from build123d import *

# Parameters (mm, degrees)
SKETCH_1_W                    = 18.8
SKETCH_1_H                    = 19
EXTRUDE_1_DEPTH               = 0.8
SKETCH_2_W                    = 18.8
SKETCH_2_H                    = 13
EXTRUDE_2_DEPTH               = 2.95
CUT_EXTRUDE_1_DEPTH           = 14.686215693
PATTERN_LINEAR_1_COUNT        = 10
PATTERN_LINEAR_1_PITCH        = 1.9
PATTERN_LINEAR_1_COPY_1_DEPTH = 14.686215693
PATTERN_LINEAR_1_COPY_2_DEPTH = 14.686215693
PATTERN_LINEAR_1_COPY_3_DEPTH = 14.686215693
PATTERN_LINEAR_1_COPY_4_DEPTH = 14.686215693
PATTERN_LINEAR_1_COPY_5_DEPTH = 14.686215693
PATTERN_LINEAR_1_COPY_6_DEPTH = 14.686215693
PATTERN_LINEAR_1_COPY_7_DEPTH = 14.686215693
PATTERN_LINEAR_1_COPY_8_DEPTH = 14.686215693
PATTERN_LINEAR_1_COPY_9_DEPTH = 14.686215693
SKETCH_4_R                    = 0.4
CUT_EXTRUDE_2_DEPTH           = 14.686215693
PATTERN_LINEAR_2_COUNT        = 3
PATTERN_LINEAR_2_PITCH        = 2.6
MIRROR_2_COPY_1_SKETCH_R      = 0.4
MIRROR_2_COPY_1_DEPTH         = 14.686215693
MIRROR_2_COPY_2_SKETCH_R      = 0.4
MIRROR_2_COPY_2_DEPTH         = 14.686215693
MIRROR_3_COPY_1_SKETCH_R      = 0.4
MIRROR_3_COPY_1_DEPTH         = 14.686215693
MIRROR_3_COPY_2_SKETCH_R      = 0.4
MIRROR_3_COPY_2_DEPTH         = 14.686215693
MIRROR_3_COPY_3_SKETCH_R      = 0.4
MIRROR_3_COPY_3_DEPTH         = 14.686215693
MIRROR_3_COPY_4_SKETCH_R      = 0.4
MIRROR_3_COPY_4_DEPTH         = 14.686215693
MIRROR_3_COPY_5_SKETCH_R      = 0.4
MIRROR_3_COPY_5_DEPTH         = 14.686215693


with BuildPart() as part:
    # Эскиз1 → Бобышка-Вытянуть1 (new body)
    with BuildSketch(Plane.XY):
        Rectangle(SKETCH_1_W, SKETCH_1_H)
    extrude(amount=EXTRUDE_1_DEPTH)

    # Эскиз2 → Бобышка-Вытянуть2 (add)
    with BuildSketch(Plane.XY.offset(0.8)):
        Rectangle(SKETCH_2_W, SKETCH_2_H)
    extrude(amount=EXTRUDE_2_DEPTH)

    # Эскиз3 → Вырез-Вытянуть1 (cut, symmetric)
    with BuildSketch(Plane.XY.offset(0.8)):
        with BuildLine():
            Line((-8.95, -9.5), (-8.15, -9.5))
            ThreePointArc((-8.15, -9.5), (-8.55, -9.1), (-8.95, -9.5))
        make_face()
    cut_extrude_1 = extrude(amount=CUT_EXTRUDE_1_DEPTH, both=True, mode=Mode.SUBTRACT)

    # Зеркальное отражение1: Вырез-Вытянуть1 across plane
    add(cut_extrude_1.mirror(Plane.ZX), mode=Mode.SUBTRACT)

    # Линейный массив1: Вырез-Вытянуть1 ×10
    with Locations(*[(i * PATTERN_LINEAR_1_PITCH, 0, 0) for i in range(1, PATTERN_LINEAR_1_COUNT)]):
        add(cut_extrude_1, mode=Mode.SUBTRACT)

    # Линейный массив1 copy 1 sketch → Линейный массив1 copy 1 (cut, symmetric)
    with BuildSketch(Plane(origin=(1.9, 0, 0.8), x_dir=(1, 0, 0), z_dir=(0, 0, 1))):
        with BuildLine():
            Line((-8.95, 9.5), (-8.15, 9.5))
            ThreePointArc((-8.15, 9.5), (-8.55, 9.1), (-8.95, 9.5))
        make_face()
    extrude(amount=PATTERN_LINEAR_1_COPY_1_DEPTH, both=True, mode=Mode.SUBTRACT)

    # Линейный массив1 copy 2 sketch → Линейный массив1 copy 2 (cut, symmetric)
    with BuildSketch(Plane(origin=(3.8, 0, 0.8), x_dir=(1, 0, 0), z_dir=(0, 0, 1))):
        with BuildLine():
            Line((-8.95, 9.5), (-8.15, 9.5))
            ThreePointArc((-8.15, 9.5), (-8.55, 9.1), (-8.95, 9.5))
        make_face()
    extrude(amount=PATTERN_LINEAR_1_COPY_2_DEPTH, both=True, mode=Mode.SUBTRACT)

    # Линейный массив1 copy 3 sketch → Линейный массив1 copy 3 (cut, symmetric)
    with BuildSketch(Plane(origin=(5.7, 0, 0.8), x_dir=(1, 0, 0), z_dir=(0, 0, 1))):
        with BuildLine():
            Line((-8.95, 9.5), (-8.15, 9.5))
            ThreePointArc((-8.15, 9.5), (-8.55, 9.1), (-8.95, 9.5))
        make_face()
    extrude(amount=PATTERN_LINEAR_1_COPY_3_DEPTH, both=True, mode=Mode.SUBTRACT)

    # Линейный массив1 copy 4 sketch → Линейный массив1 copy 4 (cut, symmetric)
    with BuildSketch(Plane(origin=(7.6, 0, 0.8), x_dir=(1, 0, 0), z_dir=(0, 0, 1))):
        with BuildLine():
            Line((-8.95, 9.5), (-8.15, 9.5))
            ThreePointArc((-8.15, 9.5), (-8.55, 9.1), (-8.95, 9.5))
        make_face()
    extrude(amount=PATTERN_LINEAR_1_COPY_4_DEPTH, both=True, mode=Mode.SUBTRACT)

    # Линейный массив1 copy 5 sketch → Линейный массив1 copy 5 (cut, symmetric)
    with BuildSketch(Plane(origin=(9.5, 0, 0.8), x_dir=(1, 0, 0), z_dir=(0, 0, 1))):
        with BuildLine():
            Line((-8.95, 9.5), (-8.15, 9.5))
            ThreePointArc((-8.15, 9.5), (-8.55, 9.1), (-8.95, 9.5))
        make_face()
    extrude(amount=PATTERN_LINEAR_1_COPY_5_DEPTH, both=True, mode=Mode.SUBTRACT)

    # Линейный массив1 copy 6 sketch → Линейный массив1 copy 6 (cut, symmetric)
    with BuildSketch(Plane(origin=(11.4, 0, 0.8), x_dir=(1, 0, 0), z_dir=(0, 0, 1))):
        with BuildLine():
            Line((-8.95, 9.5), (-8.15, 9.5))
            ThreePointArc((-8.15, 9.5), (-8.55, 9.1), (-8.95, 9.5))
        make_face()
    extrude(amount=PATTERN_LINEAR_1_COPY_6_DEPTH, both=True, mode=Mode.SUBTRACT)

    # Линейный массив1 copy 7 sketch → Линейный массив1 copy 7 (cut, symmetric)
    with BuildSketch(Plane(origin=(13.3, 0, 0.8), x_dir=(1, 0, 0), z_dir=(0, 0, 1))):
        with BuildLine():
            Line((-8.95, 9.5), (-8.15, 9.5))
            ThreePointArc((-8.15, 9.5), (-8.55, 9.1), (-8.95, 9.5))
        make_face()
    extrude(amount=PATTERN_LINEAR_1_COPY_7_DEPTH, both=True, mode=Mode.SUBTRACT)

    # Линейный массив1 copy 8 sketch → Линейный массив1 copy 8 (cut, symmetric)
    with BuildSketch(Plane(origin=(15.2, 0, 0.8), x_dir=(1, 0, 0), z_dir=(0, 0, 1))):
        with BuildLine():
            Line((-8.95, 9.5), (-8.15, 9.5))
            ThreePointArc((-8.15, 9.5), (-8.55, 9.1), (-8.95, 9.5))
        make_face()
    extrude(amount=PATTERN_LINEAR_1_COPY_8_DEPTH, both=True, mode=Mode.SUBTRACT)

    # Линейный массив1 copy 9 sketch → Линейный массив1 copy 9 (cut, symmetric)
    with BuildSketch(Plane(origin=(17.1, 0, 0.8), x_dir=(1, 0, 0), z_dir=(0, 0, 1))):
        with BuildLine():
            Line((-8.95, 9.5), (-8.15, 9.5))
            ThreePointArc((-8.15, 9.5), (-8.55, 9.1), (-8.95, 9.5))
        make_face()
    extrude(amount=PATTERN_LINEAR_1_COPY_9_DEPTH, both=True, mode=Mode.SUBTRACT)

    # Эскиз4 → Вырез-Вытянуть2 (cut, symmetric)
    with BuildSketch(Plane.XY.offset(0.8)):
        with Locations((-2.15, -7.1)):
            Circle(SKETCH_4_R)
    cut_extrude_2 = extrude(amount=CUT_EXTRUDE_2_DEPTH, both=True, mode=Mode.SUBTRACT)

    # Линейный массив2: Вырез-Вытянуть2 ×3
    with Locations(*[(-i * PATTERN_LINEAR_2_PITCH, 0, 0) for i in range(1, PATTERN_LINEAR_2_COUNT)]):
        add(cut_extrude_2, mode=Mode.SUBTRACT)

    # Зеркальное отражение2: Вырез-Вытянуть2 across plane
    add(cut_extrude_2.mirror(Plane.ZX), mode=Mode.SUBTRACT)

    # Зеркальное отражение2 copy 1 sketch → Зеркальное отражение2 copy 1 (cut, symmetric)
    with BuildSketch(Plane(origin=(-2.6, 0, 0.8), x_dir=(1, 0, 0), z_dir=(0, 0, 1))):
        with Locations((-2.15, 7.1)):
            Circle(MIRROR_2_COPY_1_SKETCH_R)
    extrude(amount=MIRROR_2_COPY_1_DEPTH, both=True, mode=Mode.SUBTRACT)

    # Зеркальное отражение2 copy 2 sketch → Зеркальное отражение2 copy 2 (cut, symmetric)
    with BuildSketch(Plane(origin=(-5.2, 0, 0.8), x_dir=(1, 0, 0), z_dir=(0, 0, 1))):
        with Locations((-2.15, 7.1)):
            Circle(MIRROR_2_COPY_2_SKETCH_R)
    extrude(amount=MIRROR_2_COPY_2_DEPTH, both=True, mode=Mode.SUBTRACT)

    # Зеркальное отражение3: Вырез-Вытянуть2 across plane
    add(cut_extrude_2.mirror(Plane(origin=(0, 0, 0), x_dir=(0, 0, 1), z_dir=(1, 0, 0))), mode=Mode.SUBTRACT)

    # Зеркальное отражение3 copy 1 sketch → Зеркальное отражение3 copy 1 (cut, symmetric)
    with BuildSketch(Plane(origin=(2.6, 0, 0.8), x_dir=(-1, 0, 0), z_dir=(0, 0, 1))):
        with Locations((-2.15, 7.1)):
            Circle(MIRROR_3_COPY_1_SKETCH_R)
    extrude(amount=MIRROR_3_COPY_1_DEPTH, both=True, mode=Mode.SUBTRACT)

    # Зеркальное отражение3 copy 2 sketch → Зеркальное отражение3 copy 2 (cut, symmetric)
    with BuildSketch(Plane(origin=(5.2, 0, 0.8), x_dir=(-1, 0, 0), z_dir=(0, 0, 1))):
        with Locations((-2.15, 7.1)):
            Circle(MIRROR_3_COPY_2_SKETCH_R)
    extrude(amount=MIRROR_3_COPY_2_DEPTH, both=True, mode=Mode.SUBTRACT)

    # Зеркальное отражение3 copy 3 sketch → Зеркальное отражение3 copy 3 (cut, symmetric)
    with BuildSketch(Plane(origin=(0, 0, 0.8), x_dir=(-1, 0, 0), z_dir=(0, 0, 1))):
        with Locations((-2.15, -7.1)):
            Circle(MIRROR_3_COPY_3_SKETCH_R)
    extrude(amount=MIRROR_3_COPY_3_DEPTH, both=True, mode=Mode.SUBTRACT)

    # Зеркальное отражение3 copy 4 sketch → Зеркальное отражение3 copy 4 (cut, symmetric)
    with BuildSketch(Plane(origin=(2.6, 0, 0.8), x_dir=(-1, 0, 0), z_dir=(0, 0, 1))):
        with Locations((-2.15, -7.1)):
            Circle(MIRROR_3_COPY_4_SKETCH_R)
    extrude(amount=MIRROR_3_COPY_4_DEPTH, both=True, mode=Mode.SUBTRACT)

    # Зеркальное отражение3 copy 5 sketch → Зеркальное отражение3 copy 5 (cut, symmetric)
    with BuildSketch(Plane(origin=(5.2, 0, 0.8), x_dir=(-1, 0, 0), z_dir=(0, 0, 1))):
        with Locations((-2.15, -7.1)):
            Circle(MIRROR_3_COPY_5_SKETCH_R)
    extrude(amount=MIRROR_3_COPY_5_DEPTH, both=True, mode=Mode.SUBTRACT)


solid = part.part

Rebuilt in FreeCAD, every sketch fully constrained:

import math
import FreeCAD as App
import Part
import Sketcher

V = App.Vector
Q = App.Units.Quantity


def add_polygon(sketch, points):
    """Adds a closed chain of lines whose ends are joined by coincident constraints."""
    first, n = sketch.GeometryCount, len(points)
    for a, b in zip(points, points[1:] + points[:1]):
        sketch.addGeometry(Part.LineSegment(App.Vector(*a, 0), App.Vector(*b, 0)), False)
    for i in range(n):
        sketch.addConstraint(Sketcher.Constraint("Coincident", first + i, 2, first + (i + 1) % n, 1))

doc = App.newDocument("Part")
body = doc.addObject("PartDesign::Body", "Body")

# Sketch on XY plane
sketch1 = body.newObject("Sketcher::SketchObject", "Sketch")
sketch1.AttachmentSupport = (doc.getObject("XY_Plane"), [""])
sketch1.MapMode = "FlatFace"
add_polygon(sketch1, [(-9, 10), (-9, -10), (9, -10), (9, 10)])  # lines 0-3
sketch1.addConstraint([
    Sketcher.Constraint("Vertical", 0),
    Sketcher.Constraint("Horizontal", 1),
    Sketcher.Constraint("Vertical", 2),
    Sketcher.Constraint("Horizontal", 3),
    Sketcher.Constraint("Symmetric", 0, 2, 2, 2, -1, 1),
    Sketcher.Constraint("DistanceY", 0, 2, 0, 1, Q("19 mm")),
    Sketcher.Constraint("DistanceX", 1, 1, 1, 2, Q("18.8 mm")),
])
pad1 = body.newObject("PartDesign::Pad", "Pad")
pad1.Profile = sketch1
pad1.Length = 0.8

# Sketch on XY plane
sketch2 = body.newObject("Sketcher::SketchObject", "Sketch001")
sketch2.AttachmentSupport = (doc.getObject("XY_Plane"), [""])
sketch2.MapMode = "FlatFace"
sketch2.AttachmentOffset = App.Placement(V(0, 0, 0.8), App.Rotation())
add_polygon(sketch2, [(-9, 6), (-9, -6), (9, -6), (9, 6)])  # lines 0-3
sketch2.addConstraint([
    Sketcher.Constraint("Vertical", 0),
    Sketcher.Constraint("Horizontal", 1),
    Sketcher.Constraint("Vertical", 2),
    Sketcher.Constraint("Horizontal", 3),
    Sketcher.Constraint("Symmetric", 0, 2, 2, 2, -1, 1),
    Sketcher.Constraint("DistanceY", 0, 2, 0, 1, Q("13 mm")),
    Sketcher.Constraint("DistanceX", 1, 1, 1, 2, Q("18.8 mm")),
])
pad2 = body.newObject("PartDesign::Pad", "Pad001")
pad2.Profile = sketch2
pad2.Length = 2.95

# Sketch on XY plane
sketch3 = body.newObject("Sketcher::SketchObject", "Sketch002")
sketch3.AttachmentSupport = (doc.getObject("XY_Plane"), [""])
sketch3.MapMode = "FlatFace"
sketch3.AttachmentOffset = App.Placement(V(0, 0, 0.8), App.Rotation())
sketch3.addGeometry([
    Part.LineSegment(V(-8.95, -9.5, 0), V(-8.15, -9.5, 0)),
    Part.ArcOfCircle(Part.Circle(V(-8.55, -9.5, 0), V(0, 0, 1), 0.4), math.radians(0), math.radians(180)),
], False)
sketch3.addConstraint([
    Sketcher.Constraint("Coincident", 0, 1, 1, 2),
    Sketcher.Constraint("Coincident", 1, 1, 0, 2),
    Sketcher.Constraint("Horizontal", 0),
    Sketcher.Constraint("Horizontal", 1, 3, 0, 1),
    Sketcher.Constraint("Radius", 1, Q("0.4 mm")),
    Sketcher.Constraint("DistanceY", 1, 3, -1, 1, Q("9.5 mm")),
    Sketcher.Constraint("DistanceX", 1, 3, -1, 1, Q("8.55 mm")),
])
pocket1 = body.newObject("PartDesign::Pocket", "Pocket")
pocket1.Profile = sketch3
pocket1.Length = 29.372431
pocket1.Midplane = True
doc.recompute()

mirrored = body.newObject("PartDesign::Mirrored", "Mirrored")
mirrored.Originals = [pocket1]
mirrored.MirrorPlane = (doc.getObject("XZ_Plane"), [""])
body.Tip = mirrored
doc.recompute()

linearpattern = body.newObject("PartDesign::LinearPattern", "LinearPattern")
linearpattern.Originals = [pocket1]
linearpattern.Direction = (doc.getObject("X_Axis"), [""])
linearpattern.Mode = "offset"
linearpattern.Offset = 1.9
linearpattern.Occurrences = 10
body.Tip = linearpattern

# Sketch on XY plane
sketch4 = body.newObject("Sketcher::SketchObject", "Sketch003")
sketch4.AttachmentSupport = (doc.getObject("XY_Plane"), [""])
sketch4.MapMode = "FlatFace"
sketch4.AttachmentOffset = App.Placement(V(0, 0, 0.8), App.Rotation())
sketch4.addGeometry([
    Part.LineSegment(V(-6.25, 9.5, 0), V(-7.05, 9.5, 0)),
    Part.ArcOfCircle(Part.Circle(V(-6.65, 9.5, 0), V(0, 0, 1), 0.4), math.radians(180), math.radians(360)),
], False)
sketch4.addConstraint([
    Sketcher.Constraint("Coincident", 0, 1, 1, 2),
    Sketcher.Constraint("Coincident", 1, 1, 0, 2),
    Sketcher.Constraint("Horizontal", 0),
    Sketcher.Constraint("Horizontal", 1, 3, 0, 1),
    Sketcher.Constraint("Radius", 1, Q("0.4 mm")),
    Sketcher.Constraint("DistanceY", -1, 1, 1, 3, Q("9.5 mm")),
    Sketcher.Constraint("DistanceX", 1, 3, -1, 1, Q("6.65 mm")),
])
pocket2 = body.newObject("PartDesign::Pocket", "Pocket001")
pocket2.Profile = sketch4
pocket2.Length = 29.372431
pocket2.Midplane = True

# Sketch on XY plane
sketch5 = body.newObject("Sketcher::SketchObject", "Sketch004")
sketch5.AttachmentSupport = (doc.getObject("XY_Plane"), [""])
sketch5.MapMode = "FlatFace"
sketch5.AttachmentOffset = App.Placement(V(0, 0, 0.8), App.Rotation())
sketch5.addGeometry([
    Part.LineSegment(V(-4.35, 9.5, 0), V(-5.15, 9.5, 0)),
    Part.ArcOfCircle(Part.Circle(V(-4.75, 9.5, 0), V(0, 0, 1), 0.4), math.radians(180), math.radians(360)),
], False)
sketch5.addConstraint([
    Sketcher.Constraint("Coincident", 0, 1, 1, 2),
    Sketcher.Constraint("Coincident", 1, 1, 0, 2),
    Sketcher.Constraint("Horizontal", 0),
    Sketcher.Constraint("Horizontal", 1, 3, 0, 1),
    Sketcher.Constraint("Radius", 1, Q("0.4 mm")),
    Sketcher.Constraint("DistanceY", -1, 1, 1, 3, Q("9.5 mm")),
    Sketcher.Constraint("DistanceX", 1, 3, -1, 1, Q("4.75 mm")),
])
pocket3 = body.newObject("PartDesign::Pocket", "Pocket002")
pocket3.Profile = sketch5
pocket3.Length = 29.372431
pocket3.Midplane = True

# Sketch on XY plane
sketch6 = body.newObject("Sketcher::SketchObject", "Sketch005")
sketch6.AttachmentSupport = (doc.getObject("XY_Plane"), [""])
sketch6.MapMode = "FlatFace"
sketch6.AttachmentOffset = App.Placement(V(0, 0, 0.8), App.Rotation())
sketch6.addGeometry([
    Part.LineSegment(V(-2.45, 9.5, 0), V(-3.25, 9.5, 0)),
    Part.ArcOfCircle(Part.Circle(V(-2.85, 9.5, 0), V(0, 0, 1), 0.4), math.radians(180), math.radians(360)),
], False)
sketch6.addConstraint([
    Sketcher.Constraint("Coincident", 0, 1, 1, 2),
    Sketcher.Constraint("Coincident", 1, 1, 0, 2),
    Sketcher.Constraint("Horizontal", 0),
    Sketcher.Constraint("Horizontal", 1, 3, 0, 1),
    Sketcher.Constraint("Radius", 1, Q("0.4 mm")),
    Sketcher.Constraint("DistanceY", -1, 1, 1, 3, Q("9.5 mm")),
    Sketcher.Constraint("DistanceX", 1, 3, -1, 1, Q("2.85 mm")),
])
pocket4 = body.newObject("PartDesign::Pocket", "Pocket003")
pocket4.Profile = sketch6
pocket4.Length = 29.372431
pocket4.Midplane = True

# Sketch on XY plane
sketch7 = body.newObject("Sketcher::SketchObject", "Sketch006")
sketch7.AttachmentSupport = (doc.getObject("XY_Plane"), [""])
sketch7.MapMode = "FlatFace"
sketch7.AttachmentOffset = App.Placement(V(0, 0, 0.8), App.Rotation())
sketch7.addGeometry([
    Part.LineSegment(V(-0.55, 9.5, 0), V(-1.35, 9.5, 0)),
    Part.ArcOfCircle(Part.Circle(V(-0.95, 9.5, 0), V(0, 0, 1), 0.4), math.radians(180), math.radians(360)),
], False)
sketch7.addConstraint([
    Sketcher.Constraint("Coincident", 0, 1, 1, 2),
    Sketcher.Constraint("Coincident", 1, 1, 0, 2),
    Sketcher.Constraint("Horizontal", 0),
    Sketcher.Constraint("Horizontal", 1, 3, 0, 1),
    Sketcher.Constraint("Radius", 1, Q("0.4 mm")),
    Sketcher.Constraint("DistanceY", -1, 1, 1, 3, Q("9.5 mm")),
    Sketcher.Constraint("DistanceX", 1, 3, -1, 1, Q("0.95 mm")),
])
pocket5 = body.newObject("PartDesign::Pocket", "Pocket004")
pocket5.Profile = sketch7
pocket5.Length = 29.372431
pocket5.Midplane = True

# Sketch on XY plane
sketch8 = body.newObject("Sketcher::SketchObject", "Sketch007")
sketch8.AttachmentSupport = (doc.getObject("XY_Plane"), [""])
sketch8.MapMode = "FlatFace"
sketch8.AttachmentOffset = App.Placement(V(0, 0, 0.8), App.Rotation())
sketch8.addGeometry([
    Part.LineSegment(V(1.35, 9.5, 0), V(0.55, 9.5, 0)),
    Part.ArcOfCircle(Part.Circle(V(0.95, 9.5, 0), V(0, 0, 1), 0.4), math.radians(180), math.radians(360)),
], False)
sketch8.addConstraint([
    Sketcher.Constraint("Coincident", 0, 1, 1, 2),
    Sketcher.Constraint("Coincident", 1, 1, 0, 2),
    Sketcher.Constraint("Horizontal", 0),
    Sketcher.Constraint("Horizontal", 1, 3, 0, 1),
    Sketcher.Constraint("Radius", 1, Q("0.4 mm")),
    Sketcher.Constraint("DistanceY", -1, 1, 1, 3, Q("9.5 mm")),
    Sketcher.Constraint("DistanceX", -1, 1, 1, 3, Q("0.95 mm")),
])
pocket6 = body.newObject("PartDesign::Pocket", "Pocket005")
pocket6.Profile = sketch8
pocket6.Length = 29.372431
pocket6.Midplane = True

# Sketch on XY plane
sketch9 = body.newObject("Sketcher::SketchObject", "Sketch008")
sketch9.AttachmentSupport = (doc.getObject("XY_Plane"), [""])
sketch9.MapMode = "FlatFace"
sketch9.AttachmentOffset = App.Placement(V(0, 0, 0.8), App.Rotation())
sketch9.addGeometry([
    Part.LineSegment(V(3.25, 9.5, 0), V(2.45, 9.5, 0)),
    Part.ArcOfCircle(Part.Circle(V(2.85, 9.5, 0), V(0, 0, 1), 0.4), math.radians(180), math.radians(360)),
], False)
sketch9.addConstraint([
    Sketcher.Constraint("Coincident", 0, 1, 1, 2),
    Sketcher.Constraint("Coincident", 1, 1, 0, 2),
    Sketcher.Constraint("Horizontal", 0),
    Sketcher.Constraint("Horizontal", 1, 3, 0, 1),
    Sketcher.Constraint("Radius", 1, Q("0.4 mm")),
    Sketcher.Constraint("DistanceY", -1, 1, 1, 3, Q("9.5 mm")),
    Sketcher.Constraint("DistanceX", -1, 1, 1, 3, Q("2.85 mm")),
])
pocket7 = body.newObject("PartDesign::Pocket", "Pocket006")
pocket7.Profile = sketch9
pocket7.Length = 29.372431
pocket7.Midplane = True

# Sketch on XY plane
sketch10 = body.newObject("Sketcher::SketchObject", "Sketch009")
sketch10.AttachmentSupport = (doc.getObject("XY_Plane"), [""])
sketch10.MapMode = "FlatFace"
sketch10.AttachmentOffset = App.Placement(V(0, 0, 0.8), App.Rotation())
sketch10.addGeometry([
    Part.LineSegment(V(5.15, 9.5, 0), V(4.35, 9.5, 0)),
    Part.ArcOfCircle(Part.Circle(V(4.75, 9.5, 0), V(0, 0, 1), 0.4), math.radians(180), math.radians(360)),
], False)
sketch10.addConstraint([
    Sketcher.Constraint("Coincident", 0, 1, 1, 2),
    Sketcher.Constraint("Coincident", 1, 1, 0, 2),
    Sketcher.Constraint("Horizontal", 0),
    Sketcher.Constraint("Horizontal", 1, 3, 0, 1),
    Sketcher.Constraint("Radius", 1, Q("0.4 mm")),
    Sketcher.Constraint("DistanceY", -1, 1, 1, 3, Q("9.5 mm")),
    Sketcher.Constraint("DistanceX", -1, 1, 1, 3, Q("4.75 mm")),
])
pocket8 = body.newObject("PartDesign::Pocket", "Pocket007")
pocket8.Profile = sketch10
pocket8.Length = 29.372431
pocket8.Midplane = True

# Sketch on XY plane
sketch11 = body.newObject("Sketcher::SketchObject", "Sketch010")
sketch11.AttachmentSupport = (doc.getObject("XY_Plane"), [""])
sketch11.MapMode = "FlatFace"
sketch11.AttachmentOffset = App.Placement(V(0, 0, 0.8), App.Rotation())
sketch11.addGeometry([
    Part.LineSegment(V(7.05, 9.5, 0), V(6.25, 9.5, 0)),
    Part.ArcOfCircle(Part.Circle(V(6.65, 9.5, 0), V(0, 0, 1), 0.4), math.radians(180), math.radians(360)),
], False)
sketch11.addConstraint([
    Sketcher.Constraint("Coincident", 0, 1, 1, 2),
    Sketcher.Constraint("Coincident", 1, 1, 0, 2),
    Sketcher.Constraint("Horizontal", 0),
    Sketcher.Constraint("Horizontal", 1, 3, 0, 1),
    Sketcher.Constraint("Radius", 1, Q("0.4 mm")),
    Sketcher.Constraint("DistanceY", -1, 1, 1, 3, Q("9.5 mm")),
    Sketcher.Constraint("DistanceX", -1, 1, 1, 3, Q("6.65 mm")),
])
pocket9 = body.newObject("PartDesign::Pocket", "Pocket008")
pocket9.Profile = sketch11
pocket9.Length = 29.372431
pocket9.Midplane = True

# Sketch on XY plane
sketch12 = body.newObject("Sketcher::SketchObject", "Sketch011")
sketch12.AttachmentSupport = (doc.getObject("XY_Plane"), [""])
sketch12.MapMode = "FlatFace"
sketch12.AttachmentOffset = App.Placement(V(0, 0, 0.8), App.Rotation())
sketch12.addGeometry([
    Part.LineSegment(V(8.95, 9.5, 0), V(8.15, 9.5, 0)),
    Part.ArcOfCircle(Part.Circle(V(8.55, 9.5, 0), V(0, 0, 1), 0.4), math.radians(180), math.radians(360)),
], False)
sketch12.addConstraint([
    Sketcher.Constraint("Coincident", 0, 1, 1, 2),
    Sketcher.Constraint("Coincident", 1, 1, 0, 2),
    Sketcher.Constraint("Horizontal", 0),
    Sketcher.Constraint("Horizontal", 1, 3, 0, 1),
    Sketcher.Constraint("Radius", 1, Q("0.4 mm")),
    Sketcher.Constraint("DistanceY", -1, 1, 1, 3, Q("9.5 mm")),
    Sketcher.Constraint("DistanceX", -1, 1, 1, 3, Q("8.55 mm")),
])
pocket10 = body.newObject("PartDesign::Pocket", "Pocket009")
pocket10.Profile = sketch12
pocket10.Length = 29.372431
pocket10.Midplane = True

# Sketch on XY plane
sketch13 = body.newObject("Sketcher::SketchObject", "Sketch012")
sketch13.AttachmentSupport = (doc.getObject("XY_Plane"), [""])
sketch13.MapMode = "FlatFace"
sketch13.AttachmentOffset = App.Placement(V(0, 0, 0.8), App.Rotation())
sketch13.addGeometry(Part.Circle(V(-2.15, -7.1, 0), V(0, 0, 1), 0.4), False)
sketch13.addConstraint([
    Sketcher.Constraint("Diameter", 0, Q("0.8 mm")),
    Sketcher.Constraint("DistanceY", 0, 3, -1, 1, Q("7.1 mm")),
    Sketcher.Constraint("DistanceX", 0, 3, -1, 1, Q("2.15 mm")),
])
pocket11 = body.newObject("PartDesign::Pocket", "Pocket010")
pocket11.Profile = sketch13
pocket11.Length = 29.372431
pocket11.Midplane = True
doc.recompute()

linearpattern2 = body.newObject("PartDesign::LinearPattern", "LinearPattern001")
linearpattern2.Originals = [pocket11]
linearpattern2.Direction = (doc.getObject("X_Axis"), [""])
linearpattern2.Mode = "offset"
linearpattern2.Offset = 2.6
linearpattern2.Occurrences = 3
linearpattern2.Reversed = True
body.Tip = linearpattern2
doc.recompute()

mirrored2 = body.newObject("PartDesign::Mirrored", "Mirrored001")
mirrored2.Originals = [pocket11]
mirrored2.MirrorPlane = (doc.getObject("XZ_Plane"), [""])
body.Tip = mirrored2

# Sketch on XY plane
sketch14 = body.newObject("Sketcher::SketchObject", "Sketch013")
sketch14.AttachmentSupport = (doc.getObject("XY_Plane"), [""])
sketch14.MapMode = "FlatFace"
sketch14.AttachmentOffset = App.Placement(V(0, 0, 0.8), App.Rotation())
sketch14.addGeometry(Part.Circle(V(-4.75, 7.1, 0), V(0, 0, 1), 0.4), False)
sketch14.addConstraint([
    Sketcher.Constraint("Diameter", 0, Q("0.8 mm")),
    Sketcher.Constraint("DistanceY", -1, 1, 0, 3, Q("7.1 mm")),
    Sketcher.Constraint("DistanceX", 0, 3, -1, 1, Q("4.75 mm")),
])
pocket12 = body.newObject("PartDesign::Pocket", "Pocket011")
pocket12.Profile = sketch14
pocket12.Length = 29.372431
pocket12.Midplane = True

# Sketch on XY plane
sketch15 = body.newObject("Sketcher::SketchObject", "Sketch014")
sketch15.AttachmentSupport = (doc.getObject("XY_Plane"), [""])
sketch15.MapMode = "FlatFace"
sketch15.AttachmentOffset = App.Placement(V(0, 0, 0.8), App.Rotation())
sketch15.addGeometry(Part.Circle(V(-7.35, 7.1, 0), V(0, 0, 1), 0.4), False)
sketch15.addConstraint([
    Sketcher.Constraint("Diameter", 0, Q("0.8 mm")),
    Sketcher.Constraint("DistanceY", -1, 1, 0, 3, Q("7.1 mm")),
    Sketcher.Constraint("DistanceX", 0, 3, -1, 1, Q("7.35 mm")),
])
pocket13 = body.newObject("PartDesign::Pocket", "Pocket012")
pocket13.Profile = sketch15
pocket13.Length = 29.372431
pocket13.Midplane = True
doc.recompute()

mirrored3 = body.newObject("PartDesign::Mirrored", "Mirrored002")
mirrored3.Originals = [pocket11]
mirrored3.MirrorPlane = (doc.getObject("YZ_Plane"), [""])
body.Tip = mirrored3

# Sketch on XY plane
sketch16 = body.newObject("Sketcher::SketchObject", "Sketch015")
sketch16.AttachmentSupport = (doc.getObject("XY_Plane"), [""])
sketch16.MapMode = "FlatFace"
sketch16.AttachmentOffset = App.Placement(V(0, 0, 0.8), App.Rotation())
sketch16.addGeometry(Part.Circle(V(4.75, -7.1, 0), V(0, 0, 1), 0.4), False)
sketch16.addConstraint([
    Sketcher.Constraint("Diameter", 0, Q("0.8 mm")),
    Sketcher.Constraint("DistanceY", 0, 3, -1, 1, Q("7.1 mm")),
    Sketcher.Constraint("DistanceX", -1, 1, 0, 3, Q("4.75 mm")),
])
pocket14 = body.newObject("PartDesign::Pocket", "Pocket013")
pocket14.Profile = sketch16
pocket14.Length = 29.372431
pocket14.Midplane = True

# Sketch on XY plane
sketch17 = body.newObject("Sketcher::SketchObject", "Sketch016")
sketch17.AttachmentSupport = (doc.getObject("XY_Plane"), [""])
sketch17.MapMode = "FlatFace"
sketch17.AttachmentOffset = App.Placement(V(0, 0, 0.8), App.Rotation())
sketch17.addGeometry(Part.Circle(V(7.35, -7.1, 0), V(0, 0, 1), 0.4), False)
sketch17.addConstraint([
    Sketcher.Constraint("Diameter", 0, Q("0.8 mm")),
    Sketcher.Constraint("DistanceY", 0, 3, -1, 1, Q("7.1 mm")),
    Sketcher.Constraint("DistanceX", -1, 1, 0, 3, Q("7.35 mm")),
])
pocket15 = body.newObject("PartDesign::Pocket", "Pocket014")
pocket15.Profile = sketch17
pocket15.Length = 29.372431
pocket15.Midplane = True

# Sketch on XY plane
sketch18 = body.newObject("Sketcher::SketchObject", "Sketch017")
sketch18.AttachmentSupport = (doc.getObject("XY_Plane"), [""])
sketch18.MapMode = "FlatFace"
sketch18.AttachmentOffset = App.Placement(V(0, 0, 0.8), App.Rotation())
sketch18.addGeometry(Part.Circle(V(2.15, 7.1, 0), V(0, 0, 1), 0.4), False)
sketch18.addConstraint([
    Sketcher.Constraint("Diameter", 0, Q("0.8 mm")),
    Sketcher.Constraint("DistanceY", -1, 1, 0, 3, Q("7.1 mm")),
    Sketcher.Constraint("DistanceX", -1, 1, 0, 3, Q("2.15 mm")),
])
pocket16 = body.newObject("PartDesign::Pocket", "Pocket015")
pocket16.Profile = sketch18
pocket16.Length = 29.372431
pocket16.Midplane = True

# Sketch on XY plane
sketch19 = body.newObject("Sketcher::SketchObject", "Sketch018")
sketch19.AttachmentSupport = (doc.getObject("XY_Plane"), [""])
sketch19.MapMode = "FlatFace"
sketch19.AttachmentOffset = App.Placement(V(0, 0, 0.8), App.Rotation())
sketch19.addGeometry(Part.Circle(V(4.75, 7.1, 0), V(0, 0, 1), 0.4), False)
sketch19.addConstraint([
    Sketcher.Constraint("Diameter", 0, Q("0.8 mm")),
    Sketcher.Constraint("DistanceY", -1, 1, 0, 3, Q("7.1 mm")),
    Sketcher.Constraint("DistanceX", -1, 1, 0, 3, Q("4.75 mm")),
])
pocket17 = body.newObject("PartDesign::Pocket", "Pocket016")
pocket17.Profile = sketch19
pocket17.Length = 29.372431
pocket17.Midplane = True

# Sketch on XY plane
sketch20 = body.newObject("Sketcher::SketchObject", "Sketch019")
sketch20.AttachmentSupport = (doc.getObject("XY_Plane"), [""])
sketch20.MapMode = "FlatFace"
sketch20.AttachmentOffset = App.Placement(V(0, 0, 0.8), App.Rotation())
sketch20.addGeometry(Part.Circle(V(7.35, 7.1, 0), V(0, 0, 1), 0.4), False)
sketch20.addConstraint([
    Sketcher.Constraint("Diameter", 0, Q("0.8 mm")),
    Sketcher.Constraint("DistanceY", -1, 1, 0, 3, Q("7.1 mm")),
    Sketcher.Constraint("DistanceX", -1, 1, 0, 3, Q("7.35 mm")),
])
pocket18 = body.newObject("PartDesign::Pocket", "Pocket017")
pocket18.Profile = sketch20
pocket18.Length = 29.372431
pocket18.Midplane = True

doc.recompute()
